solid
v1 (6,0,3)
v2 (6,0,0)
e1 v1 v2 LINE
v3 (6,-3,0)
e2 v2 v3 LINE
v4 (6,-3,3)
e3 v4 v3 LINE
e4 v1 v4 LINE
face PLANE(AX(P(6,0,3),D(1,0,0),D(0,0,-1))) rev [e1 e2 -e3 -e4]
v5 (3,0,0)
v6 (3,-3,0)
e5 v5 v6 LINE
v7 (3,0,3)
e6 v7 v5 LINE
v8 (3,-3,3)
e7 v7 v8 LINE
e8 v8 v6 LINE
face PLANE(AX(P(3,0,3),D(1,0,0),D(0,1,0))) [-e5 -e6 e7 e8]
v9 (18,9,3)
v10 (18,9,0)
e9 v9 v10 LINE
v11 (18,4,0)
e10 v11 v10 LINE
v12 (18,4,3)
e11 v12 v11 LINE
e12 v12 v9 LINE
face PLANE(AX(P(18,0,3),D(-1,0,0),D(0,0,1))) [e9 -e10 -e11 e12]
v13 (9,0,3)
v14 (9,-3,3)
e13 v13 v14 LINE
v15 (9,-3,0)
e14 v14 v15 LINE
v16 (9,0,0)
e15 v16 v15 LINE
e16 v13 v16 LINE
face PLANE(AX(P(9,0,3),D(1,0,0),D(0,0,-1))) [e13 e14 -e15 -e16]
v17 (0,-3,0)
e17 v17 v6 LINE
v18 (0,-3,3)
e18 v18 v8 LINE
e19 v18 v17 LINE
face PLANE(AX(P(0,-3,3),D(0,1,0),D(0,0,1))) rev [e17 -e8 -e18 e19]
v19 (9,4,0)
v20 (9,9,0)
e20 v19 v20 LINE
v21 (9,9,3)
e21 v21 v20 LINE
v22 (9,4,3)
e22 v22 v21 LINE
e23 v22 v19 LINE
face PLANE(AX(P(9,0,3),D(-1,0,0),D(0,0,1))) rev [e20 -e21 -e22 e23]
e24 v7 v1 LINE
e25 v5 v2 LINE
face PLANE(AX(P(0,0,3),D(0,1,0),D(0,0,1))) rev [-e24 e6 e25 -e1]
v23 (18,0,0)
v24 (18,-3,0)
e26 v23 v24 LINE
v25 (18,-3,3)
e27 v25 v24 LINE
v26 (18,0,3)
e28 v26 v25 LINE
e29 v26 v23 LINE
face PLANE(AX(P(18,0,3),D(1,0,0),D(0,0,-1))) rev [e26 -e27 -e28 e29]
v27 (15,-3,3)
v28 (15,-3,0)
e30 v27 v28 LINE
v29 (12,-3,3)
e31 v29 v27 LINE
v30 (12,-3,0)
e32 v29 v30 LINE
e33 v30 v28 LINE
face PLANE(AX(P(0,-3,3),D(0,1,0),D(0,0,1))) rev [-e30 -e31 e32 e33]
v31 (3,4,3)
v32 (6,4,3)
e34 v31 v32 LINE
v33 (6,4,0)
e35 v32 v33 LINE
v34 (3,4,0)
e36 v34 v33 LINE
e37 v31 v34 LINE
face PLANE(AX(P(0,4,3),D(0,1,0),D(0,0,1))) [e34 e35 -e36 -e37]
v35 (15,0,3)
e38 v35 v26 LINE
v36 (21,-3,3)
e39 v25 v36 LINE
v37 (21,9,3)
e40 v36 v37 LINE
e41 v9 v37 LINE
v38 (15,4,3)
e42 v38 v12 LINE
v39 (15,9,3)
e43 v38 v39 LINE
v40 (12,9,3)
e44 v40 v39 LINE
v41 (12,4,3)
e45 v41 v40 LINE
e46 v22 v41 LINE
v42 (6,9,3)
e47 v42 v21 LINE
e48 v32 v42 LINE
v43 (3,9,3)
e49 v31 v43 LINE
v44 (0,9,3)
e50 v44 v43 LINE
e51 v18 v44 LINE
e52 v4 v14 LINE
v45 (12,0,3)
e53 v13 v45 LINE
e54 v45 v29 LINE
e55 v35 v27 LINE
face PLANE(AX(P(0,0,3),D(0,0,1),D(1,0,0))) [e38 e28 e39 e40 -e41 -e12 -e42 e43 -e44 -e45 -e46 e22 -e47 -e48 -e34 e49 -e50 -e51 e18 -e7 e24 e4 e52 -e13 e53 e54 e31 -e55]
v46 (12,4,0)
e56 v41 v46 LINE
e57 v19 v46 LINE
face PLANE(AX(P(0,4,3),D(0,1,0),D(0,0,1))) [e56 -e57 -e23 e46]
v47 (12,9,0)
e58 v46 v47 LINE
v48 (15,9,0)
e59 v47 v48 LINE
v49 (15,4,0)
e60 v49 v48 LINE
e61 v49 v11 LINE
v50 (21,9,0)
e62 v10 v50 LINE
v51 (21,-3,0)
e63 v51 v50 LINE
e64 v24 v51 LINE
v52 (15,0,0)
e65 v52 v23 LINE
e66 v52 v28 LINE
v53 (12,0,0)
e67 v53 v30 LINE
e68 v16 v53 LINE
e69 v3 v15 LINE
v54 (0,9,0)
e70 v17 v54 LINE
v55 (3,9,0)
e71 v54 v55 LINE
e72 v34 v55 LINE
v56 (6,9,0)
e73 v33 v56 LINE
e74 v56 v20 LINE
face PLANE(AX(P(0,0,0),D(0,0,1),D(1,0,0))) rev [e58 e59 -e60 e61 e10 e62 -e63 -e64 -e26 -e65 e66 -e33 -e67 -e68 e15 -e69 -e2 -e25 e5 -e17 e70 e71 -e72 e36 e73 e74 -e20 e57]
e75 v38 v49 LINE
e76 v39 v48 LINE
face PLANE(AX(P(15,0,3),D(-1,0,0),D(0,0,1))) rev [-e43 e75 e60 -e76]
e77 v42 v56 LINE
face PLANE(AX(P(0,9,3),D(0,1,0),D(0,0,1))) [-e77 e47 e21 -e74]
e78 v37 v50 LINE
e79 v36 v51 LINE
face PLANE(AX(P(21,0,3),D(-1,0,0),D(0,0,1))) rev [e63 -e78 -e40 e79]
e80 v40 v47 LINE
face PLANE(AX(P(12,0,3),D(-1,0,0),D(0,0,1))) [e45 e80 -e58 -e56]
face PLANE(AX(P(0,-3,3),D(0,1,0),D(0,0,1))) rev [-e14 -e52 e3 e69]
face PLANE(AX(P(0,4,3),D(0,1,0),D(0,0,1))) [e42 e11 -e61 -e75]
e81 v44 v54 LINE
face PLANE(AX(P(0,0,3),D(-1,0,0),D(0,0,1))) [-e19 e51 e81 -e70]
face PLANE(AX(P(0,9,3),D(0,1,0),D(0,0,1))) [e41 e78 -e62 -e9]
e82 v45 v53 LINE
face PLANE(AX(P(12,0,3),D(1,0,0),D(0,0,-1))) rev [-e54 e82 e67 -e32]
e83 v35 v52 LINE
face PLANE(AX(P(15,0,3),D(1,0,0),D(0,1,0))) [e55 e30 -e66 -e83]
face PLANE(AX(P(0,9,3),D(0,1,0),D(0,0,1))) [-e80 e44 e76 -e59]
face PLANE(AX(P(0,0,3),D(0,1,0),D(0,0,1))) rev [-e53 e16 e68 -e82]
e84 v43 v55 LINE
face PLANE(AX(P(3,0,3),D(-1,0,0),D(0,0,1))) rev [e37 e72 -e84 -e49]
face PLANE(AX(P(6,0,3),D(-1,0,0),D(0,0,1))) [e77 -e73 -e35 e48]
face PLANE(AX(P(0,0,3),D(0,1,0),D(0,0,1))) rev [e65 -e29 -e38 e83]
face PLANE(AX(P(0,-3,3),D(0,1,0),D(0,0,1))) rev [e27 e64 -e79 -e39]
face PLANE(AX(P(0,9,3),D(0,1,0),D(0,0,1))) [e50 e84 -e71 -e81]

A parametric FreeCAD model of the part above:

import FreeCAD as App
import Part
import Sketcher
from FreeCAD import Vector
Q = App.Units.Quantity

doc = App.newDocument("Part")
body = doc.addObject("PartDesign::Body", "Body")

sketch1 = body.newObject("Sketcher::SketchObject", "Sketch")
sketch1.AttachmentSupport = (doc.getObject("XY_Plane"), [""])
sketch1.MapMode = "FlatFace"
sketch1.addGeometry([
    Part.LineSegment(Vector(0, -3, 0), Vector(3, -3, 0)),
    Part.LineSegment(Vector(3, -3, 0), Vector(3, 0, 0)),
    Part.LineSegment(Vector(3, 0, 0), Vector(6, 0, 0)),
    Part.LineSegment(Vector(6, 0, 0), Vector(6, -3, 0)),
    Part.LineSegment(Vector(6, -3, 0), Vector(9, -3, 0)),
    Part.LineSegment(Vector(9, -3, 0), Vector(9, 0, 0)),
    Part.LineSegment(Vector(9, 0, 0), Vector(12, 0, 0)),
    Part.LineSegment(Vector(12, 0, 0), Vector(12, -3, 0)),
    Part.LineSegment(Vector(12, -3, 0), Vector(15, -3, 0)),
    Part.LineSegment(Vector(15, -3, 0), Vector(15, 0, 0)),
    Part.LineSegment(Vector(15, 0, 0), Vector(18, 0, 0)),
    Part.LineSegment(Vector(18, 0, 0), Vector(18, -3, 0)),
    Part.LineSegment(Vector(18, -3, 0), Vector(21, -3, 0)),
    Part.LineSegment(Vector(21, -3, 0), Vector(21, 9, 0)),
    Part.LineSegment(Vector(21, 9, 0), Vector(18, 9, 0)),
    Part.LineSegment(Vector(18, 9, 0), Vector(18, 4, 0)),
    Part.LineSegment(Vector(18, 4, 0), Vector(15, 4, 0)),
    Part.LineSegment(Vector(15, 4, 0), Vector(15, 9, 0)),
    Part.LineSegment(Vector(15, 9, 0), Vector(12, 9, 0)),
    Part.LineSegment(Vector(12, 9, 0), Vector(12, 4, 0)),
    Part.LineSegment(Vector(12, 4, 0), Vector(9, 4, 0)),
    Part.LineSegment(Vector(9, 4, 0), Vector(9, 9, 0)),
    Part.LineSegment(Vector(9, 9, 0), Vector(6, 9, 0)),
    Part.LineSegment(Vector(6, 9, 0), Vector(6, 4, 0)),
    Part.LineSegment(Vector(6, 4, 0), Vector(3, 4, 0)),
    Part.LineSegment(Vector(3, 4, 0), Vector(3, 9, 0)),
    Part.LineSegment(Vector(3, 9, 0), Vector(0, 9, 0)),
    Part.LineSegment(Vector(0, 9, 0), Vector(0, -3, 0)),
], False)
sketch1.addConstraint([
    Sketcher.Constraint("Coincident", 0, 2, 1, 1),
    Sketcher.Constraint("Coincident", 1, 2, 2, 1),
    Sketcher.Constraint("Coincident", 2, 2, 3, 1),
    Sketcher.Constraint("Coincident", 3, 2, 4, 1),
    Sketcher.Constraint("Coincident", 4, 2, 5, 1),
    Sketcher.Constraint("Coincident", 5, 2, 6, 1),
    Sketcher.Constraint("Coincident", 6, 2, 7, 1),
    Sketcher.Constraint("Coincident", 7, 2, 8, 1),
    Sketcher.Constraint("Coincident", 8, 2, 9, 1),
    Sketcher.Constraint("Coincident", 9, 2, 10, 1),
    Sketcher.Constraint("Coincident", 10, 2, 11, 1),
    Sketcher.Constraint("Coincident", 11, 2, 12, 1),
    Sketcher.Constraint("Coincident", 12, 2, 13, 1),
    Sketcher.Constraint("Coincident", 13, 2, 14, 1),
    Sketcher.Constraint("Coincident", 14, 2, 15, 1),
    Sketcher.Constraint("Coincident", 15, 2, 16, 1),
    Sketcher.Constraint("Coincident", 16, 2, 17, 1),
    Sketcher.Constraint("Coincident", 17, 2, 18, 1),
    Sketcher.Constraint("Coincident", 18, 2, 19, 1),
    Sketcher.Constraint("Coincident", 19, 2, 20, 1),
    Sketcher.Constraint("Coincident", 20, 2, 21, 1),
    Sketcher.Constraint("Coincident", 21, 2, 22, 1),
    Sketcher.Constraint("Coincident", 22, 2, 23, 1),
    Sketcher.Constraint("Coincident", 23, 2, 24, 1),
    Sketcher.Constraint("Coincident", 24, 2, 25, 1),
    Sketcher.Constraint("Coincident", 25, 2, 26, 1),
    Sketcher.Constraint("Coincident", 26, 2, 27, 1),
    Sketcher.Constraint("Coincident", 27, 2, 0, 1),
    Sketcher.Constraint("Horizontal", 0),
    Sketcher.Constraint("Vertical", 1),
    Sketcher.Constraint("Horizontal", 2),
    Sketcher.Constraint("Vertical", 3),
    Sketcher.Constraint("Horizontal", 4),
    Sketcher.Constraint("Vertical", 5),
    Sketcher.Constraint("Horizontal", 6),
    Sketcher.Constraint("Vertical", 7),
    Sketcher.Constraint("Horizontal", 8),
    Sketcher.Constraint("Vertical", 9),
    Sketcher.Constraint("Horizontal", 10),
    Sketcher.Constraint("Vertical", 11),
    Sketcher.Constraint("Horizontal", 12),
    Sketcher.Constraint("Vertical", 13),
    Sketcher.Constraint("Horizontal", 14),
    Sketcher.Constraint("Vertical", 15),
    Sketcher.Constraint("Horizontal", 16),
    Sketcher.Constraint("Vertical", 17),
    Sketcher.Constraint("Horizontal", 18),
    Sketcher.Constraint("Vertical", 19),
    Sketcher.Constraint("Horizontal", 20),
    Sketcher.Constraint("Vertical", 21),
    Sketcher.Constraint("Horizontal", 22),
    Sketcher.Constraint("Vertical", 23),
    Sketcher.Constraint("Horizontal", 24),
    Sketcher.Constraint("Vertical", 25),
    Sketcher.Constraint("Horizontal", 26),
    Sketcher.Constraint("Vertical", 27),
    Sketcher.Constraint("PointOnObject", 1, 2, -1),
    Sketcher.Constraint("PointOnObject", 5, 2, -1),
    Sketcher.Constraint("PointOnObject", 9, 2, -1),
    Sketcher.Constraint("PointOnObject", 26, 2, -2),
    Sketcher.Constraint("Horizontal", 0, 2, 3, 2),
    Sketcher.Constraint("Horizontal", 4, 2, 7, 2),
    Sketcher.Constraint("Horizontal", 8, 2, 11, 2),
    Sketcher.Constraint("Horizontal", 14, 2, 17, 2),
    Sketcher.Constraint("Horizontal", 16, 2, 19, 2),
    Sketcher.Constraint("Horizontal", 18, 2, 21, 2),
    Sketcher.Constraint("Horizontal", 20, 2, 23, 2),
    Sketcher.Constraint("Horizontal", 22, 2, 25, 2),
    Sketcher.Constraint("Vertical", 11, 2, 14, 2),
    Sketcher.Constraint("Vertical", 9, 2, 16, 2),
    Sketcher.Constraint("Vertical", 7, 2, 18, 2),
    Sketcher.Constraint("Vertical", 5, 2, 20, 2),
    Sketcher.Constraint("Vertical", 3, 2, 22, 2),
    Sketcher.Constraint("Vertical", 1, 2, 24, 2),
    Sketcher.Constraint("Equal", 0, 2),
    Sketcher.Constraint("Equal", 2, 4),
    Sketcher.Constraint("Equal", 4, 6),
    Sketcher.Constraint("Equal", 6, 8),
    Sketcher.Constraint("Equal", 8, 10),
    Sketcher.Constraint("Equal", 10, 12),
    Sketcher.Constraint("Equal", 26, 1),
    Sketcher.Constraint("DistanceX", 0, 1, 0, 2, Q("3 mm")),
    Sketcher.Constraint("DistanceY", 13, 1, 13, 2, Q("12 mm")),
    Sketcher.Constraint("DistanceY", 15, 2, 15, 1, Q("5 mm")),
])
pad1 = body.newObject("PartDesign::Pad", "Pad")
pad1.Profile = sketch1
pad1.Length = 3

doc.recompute()
